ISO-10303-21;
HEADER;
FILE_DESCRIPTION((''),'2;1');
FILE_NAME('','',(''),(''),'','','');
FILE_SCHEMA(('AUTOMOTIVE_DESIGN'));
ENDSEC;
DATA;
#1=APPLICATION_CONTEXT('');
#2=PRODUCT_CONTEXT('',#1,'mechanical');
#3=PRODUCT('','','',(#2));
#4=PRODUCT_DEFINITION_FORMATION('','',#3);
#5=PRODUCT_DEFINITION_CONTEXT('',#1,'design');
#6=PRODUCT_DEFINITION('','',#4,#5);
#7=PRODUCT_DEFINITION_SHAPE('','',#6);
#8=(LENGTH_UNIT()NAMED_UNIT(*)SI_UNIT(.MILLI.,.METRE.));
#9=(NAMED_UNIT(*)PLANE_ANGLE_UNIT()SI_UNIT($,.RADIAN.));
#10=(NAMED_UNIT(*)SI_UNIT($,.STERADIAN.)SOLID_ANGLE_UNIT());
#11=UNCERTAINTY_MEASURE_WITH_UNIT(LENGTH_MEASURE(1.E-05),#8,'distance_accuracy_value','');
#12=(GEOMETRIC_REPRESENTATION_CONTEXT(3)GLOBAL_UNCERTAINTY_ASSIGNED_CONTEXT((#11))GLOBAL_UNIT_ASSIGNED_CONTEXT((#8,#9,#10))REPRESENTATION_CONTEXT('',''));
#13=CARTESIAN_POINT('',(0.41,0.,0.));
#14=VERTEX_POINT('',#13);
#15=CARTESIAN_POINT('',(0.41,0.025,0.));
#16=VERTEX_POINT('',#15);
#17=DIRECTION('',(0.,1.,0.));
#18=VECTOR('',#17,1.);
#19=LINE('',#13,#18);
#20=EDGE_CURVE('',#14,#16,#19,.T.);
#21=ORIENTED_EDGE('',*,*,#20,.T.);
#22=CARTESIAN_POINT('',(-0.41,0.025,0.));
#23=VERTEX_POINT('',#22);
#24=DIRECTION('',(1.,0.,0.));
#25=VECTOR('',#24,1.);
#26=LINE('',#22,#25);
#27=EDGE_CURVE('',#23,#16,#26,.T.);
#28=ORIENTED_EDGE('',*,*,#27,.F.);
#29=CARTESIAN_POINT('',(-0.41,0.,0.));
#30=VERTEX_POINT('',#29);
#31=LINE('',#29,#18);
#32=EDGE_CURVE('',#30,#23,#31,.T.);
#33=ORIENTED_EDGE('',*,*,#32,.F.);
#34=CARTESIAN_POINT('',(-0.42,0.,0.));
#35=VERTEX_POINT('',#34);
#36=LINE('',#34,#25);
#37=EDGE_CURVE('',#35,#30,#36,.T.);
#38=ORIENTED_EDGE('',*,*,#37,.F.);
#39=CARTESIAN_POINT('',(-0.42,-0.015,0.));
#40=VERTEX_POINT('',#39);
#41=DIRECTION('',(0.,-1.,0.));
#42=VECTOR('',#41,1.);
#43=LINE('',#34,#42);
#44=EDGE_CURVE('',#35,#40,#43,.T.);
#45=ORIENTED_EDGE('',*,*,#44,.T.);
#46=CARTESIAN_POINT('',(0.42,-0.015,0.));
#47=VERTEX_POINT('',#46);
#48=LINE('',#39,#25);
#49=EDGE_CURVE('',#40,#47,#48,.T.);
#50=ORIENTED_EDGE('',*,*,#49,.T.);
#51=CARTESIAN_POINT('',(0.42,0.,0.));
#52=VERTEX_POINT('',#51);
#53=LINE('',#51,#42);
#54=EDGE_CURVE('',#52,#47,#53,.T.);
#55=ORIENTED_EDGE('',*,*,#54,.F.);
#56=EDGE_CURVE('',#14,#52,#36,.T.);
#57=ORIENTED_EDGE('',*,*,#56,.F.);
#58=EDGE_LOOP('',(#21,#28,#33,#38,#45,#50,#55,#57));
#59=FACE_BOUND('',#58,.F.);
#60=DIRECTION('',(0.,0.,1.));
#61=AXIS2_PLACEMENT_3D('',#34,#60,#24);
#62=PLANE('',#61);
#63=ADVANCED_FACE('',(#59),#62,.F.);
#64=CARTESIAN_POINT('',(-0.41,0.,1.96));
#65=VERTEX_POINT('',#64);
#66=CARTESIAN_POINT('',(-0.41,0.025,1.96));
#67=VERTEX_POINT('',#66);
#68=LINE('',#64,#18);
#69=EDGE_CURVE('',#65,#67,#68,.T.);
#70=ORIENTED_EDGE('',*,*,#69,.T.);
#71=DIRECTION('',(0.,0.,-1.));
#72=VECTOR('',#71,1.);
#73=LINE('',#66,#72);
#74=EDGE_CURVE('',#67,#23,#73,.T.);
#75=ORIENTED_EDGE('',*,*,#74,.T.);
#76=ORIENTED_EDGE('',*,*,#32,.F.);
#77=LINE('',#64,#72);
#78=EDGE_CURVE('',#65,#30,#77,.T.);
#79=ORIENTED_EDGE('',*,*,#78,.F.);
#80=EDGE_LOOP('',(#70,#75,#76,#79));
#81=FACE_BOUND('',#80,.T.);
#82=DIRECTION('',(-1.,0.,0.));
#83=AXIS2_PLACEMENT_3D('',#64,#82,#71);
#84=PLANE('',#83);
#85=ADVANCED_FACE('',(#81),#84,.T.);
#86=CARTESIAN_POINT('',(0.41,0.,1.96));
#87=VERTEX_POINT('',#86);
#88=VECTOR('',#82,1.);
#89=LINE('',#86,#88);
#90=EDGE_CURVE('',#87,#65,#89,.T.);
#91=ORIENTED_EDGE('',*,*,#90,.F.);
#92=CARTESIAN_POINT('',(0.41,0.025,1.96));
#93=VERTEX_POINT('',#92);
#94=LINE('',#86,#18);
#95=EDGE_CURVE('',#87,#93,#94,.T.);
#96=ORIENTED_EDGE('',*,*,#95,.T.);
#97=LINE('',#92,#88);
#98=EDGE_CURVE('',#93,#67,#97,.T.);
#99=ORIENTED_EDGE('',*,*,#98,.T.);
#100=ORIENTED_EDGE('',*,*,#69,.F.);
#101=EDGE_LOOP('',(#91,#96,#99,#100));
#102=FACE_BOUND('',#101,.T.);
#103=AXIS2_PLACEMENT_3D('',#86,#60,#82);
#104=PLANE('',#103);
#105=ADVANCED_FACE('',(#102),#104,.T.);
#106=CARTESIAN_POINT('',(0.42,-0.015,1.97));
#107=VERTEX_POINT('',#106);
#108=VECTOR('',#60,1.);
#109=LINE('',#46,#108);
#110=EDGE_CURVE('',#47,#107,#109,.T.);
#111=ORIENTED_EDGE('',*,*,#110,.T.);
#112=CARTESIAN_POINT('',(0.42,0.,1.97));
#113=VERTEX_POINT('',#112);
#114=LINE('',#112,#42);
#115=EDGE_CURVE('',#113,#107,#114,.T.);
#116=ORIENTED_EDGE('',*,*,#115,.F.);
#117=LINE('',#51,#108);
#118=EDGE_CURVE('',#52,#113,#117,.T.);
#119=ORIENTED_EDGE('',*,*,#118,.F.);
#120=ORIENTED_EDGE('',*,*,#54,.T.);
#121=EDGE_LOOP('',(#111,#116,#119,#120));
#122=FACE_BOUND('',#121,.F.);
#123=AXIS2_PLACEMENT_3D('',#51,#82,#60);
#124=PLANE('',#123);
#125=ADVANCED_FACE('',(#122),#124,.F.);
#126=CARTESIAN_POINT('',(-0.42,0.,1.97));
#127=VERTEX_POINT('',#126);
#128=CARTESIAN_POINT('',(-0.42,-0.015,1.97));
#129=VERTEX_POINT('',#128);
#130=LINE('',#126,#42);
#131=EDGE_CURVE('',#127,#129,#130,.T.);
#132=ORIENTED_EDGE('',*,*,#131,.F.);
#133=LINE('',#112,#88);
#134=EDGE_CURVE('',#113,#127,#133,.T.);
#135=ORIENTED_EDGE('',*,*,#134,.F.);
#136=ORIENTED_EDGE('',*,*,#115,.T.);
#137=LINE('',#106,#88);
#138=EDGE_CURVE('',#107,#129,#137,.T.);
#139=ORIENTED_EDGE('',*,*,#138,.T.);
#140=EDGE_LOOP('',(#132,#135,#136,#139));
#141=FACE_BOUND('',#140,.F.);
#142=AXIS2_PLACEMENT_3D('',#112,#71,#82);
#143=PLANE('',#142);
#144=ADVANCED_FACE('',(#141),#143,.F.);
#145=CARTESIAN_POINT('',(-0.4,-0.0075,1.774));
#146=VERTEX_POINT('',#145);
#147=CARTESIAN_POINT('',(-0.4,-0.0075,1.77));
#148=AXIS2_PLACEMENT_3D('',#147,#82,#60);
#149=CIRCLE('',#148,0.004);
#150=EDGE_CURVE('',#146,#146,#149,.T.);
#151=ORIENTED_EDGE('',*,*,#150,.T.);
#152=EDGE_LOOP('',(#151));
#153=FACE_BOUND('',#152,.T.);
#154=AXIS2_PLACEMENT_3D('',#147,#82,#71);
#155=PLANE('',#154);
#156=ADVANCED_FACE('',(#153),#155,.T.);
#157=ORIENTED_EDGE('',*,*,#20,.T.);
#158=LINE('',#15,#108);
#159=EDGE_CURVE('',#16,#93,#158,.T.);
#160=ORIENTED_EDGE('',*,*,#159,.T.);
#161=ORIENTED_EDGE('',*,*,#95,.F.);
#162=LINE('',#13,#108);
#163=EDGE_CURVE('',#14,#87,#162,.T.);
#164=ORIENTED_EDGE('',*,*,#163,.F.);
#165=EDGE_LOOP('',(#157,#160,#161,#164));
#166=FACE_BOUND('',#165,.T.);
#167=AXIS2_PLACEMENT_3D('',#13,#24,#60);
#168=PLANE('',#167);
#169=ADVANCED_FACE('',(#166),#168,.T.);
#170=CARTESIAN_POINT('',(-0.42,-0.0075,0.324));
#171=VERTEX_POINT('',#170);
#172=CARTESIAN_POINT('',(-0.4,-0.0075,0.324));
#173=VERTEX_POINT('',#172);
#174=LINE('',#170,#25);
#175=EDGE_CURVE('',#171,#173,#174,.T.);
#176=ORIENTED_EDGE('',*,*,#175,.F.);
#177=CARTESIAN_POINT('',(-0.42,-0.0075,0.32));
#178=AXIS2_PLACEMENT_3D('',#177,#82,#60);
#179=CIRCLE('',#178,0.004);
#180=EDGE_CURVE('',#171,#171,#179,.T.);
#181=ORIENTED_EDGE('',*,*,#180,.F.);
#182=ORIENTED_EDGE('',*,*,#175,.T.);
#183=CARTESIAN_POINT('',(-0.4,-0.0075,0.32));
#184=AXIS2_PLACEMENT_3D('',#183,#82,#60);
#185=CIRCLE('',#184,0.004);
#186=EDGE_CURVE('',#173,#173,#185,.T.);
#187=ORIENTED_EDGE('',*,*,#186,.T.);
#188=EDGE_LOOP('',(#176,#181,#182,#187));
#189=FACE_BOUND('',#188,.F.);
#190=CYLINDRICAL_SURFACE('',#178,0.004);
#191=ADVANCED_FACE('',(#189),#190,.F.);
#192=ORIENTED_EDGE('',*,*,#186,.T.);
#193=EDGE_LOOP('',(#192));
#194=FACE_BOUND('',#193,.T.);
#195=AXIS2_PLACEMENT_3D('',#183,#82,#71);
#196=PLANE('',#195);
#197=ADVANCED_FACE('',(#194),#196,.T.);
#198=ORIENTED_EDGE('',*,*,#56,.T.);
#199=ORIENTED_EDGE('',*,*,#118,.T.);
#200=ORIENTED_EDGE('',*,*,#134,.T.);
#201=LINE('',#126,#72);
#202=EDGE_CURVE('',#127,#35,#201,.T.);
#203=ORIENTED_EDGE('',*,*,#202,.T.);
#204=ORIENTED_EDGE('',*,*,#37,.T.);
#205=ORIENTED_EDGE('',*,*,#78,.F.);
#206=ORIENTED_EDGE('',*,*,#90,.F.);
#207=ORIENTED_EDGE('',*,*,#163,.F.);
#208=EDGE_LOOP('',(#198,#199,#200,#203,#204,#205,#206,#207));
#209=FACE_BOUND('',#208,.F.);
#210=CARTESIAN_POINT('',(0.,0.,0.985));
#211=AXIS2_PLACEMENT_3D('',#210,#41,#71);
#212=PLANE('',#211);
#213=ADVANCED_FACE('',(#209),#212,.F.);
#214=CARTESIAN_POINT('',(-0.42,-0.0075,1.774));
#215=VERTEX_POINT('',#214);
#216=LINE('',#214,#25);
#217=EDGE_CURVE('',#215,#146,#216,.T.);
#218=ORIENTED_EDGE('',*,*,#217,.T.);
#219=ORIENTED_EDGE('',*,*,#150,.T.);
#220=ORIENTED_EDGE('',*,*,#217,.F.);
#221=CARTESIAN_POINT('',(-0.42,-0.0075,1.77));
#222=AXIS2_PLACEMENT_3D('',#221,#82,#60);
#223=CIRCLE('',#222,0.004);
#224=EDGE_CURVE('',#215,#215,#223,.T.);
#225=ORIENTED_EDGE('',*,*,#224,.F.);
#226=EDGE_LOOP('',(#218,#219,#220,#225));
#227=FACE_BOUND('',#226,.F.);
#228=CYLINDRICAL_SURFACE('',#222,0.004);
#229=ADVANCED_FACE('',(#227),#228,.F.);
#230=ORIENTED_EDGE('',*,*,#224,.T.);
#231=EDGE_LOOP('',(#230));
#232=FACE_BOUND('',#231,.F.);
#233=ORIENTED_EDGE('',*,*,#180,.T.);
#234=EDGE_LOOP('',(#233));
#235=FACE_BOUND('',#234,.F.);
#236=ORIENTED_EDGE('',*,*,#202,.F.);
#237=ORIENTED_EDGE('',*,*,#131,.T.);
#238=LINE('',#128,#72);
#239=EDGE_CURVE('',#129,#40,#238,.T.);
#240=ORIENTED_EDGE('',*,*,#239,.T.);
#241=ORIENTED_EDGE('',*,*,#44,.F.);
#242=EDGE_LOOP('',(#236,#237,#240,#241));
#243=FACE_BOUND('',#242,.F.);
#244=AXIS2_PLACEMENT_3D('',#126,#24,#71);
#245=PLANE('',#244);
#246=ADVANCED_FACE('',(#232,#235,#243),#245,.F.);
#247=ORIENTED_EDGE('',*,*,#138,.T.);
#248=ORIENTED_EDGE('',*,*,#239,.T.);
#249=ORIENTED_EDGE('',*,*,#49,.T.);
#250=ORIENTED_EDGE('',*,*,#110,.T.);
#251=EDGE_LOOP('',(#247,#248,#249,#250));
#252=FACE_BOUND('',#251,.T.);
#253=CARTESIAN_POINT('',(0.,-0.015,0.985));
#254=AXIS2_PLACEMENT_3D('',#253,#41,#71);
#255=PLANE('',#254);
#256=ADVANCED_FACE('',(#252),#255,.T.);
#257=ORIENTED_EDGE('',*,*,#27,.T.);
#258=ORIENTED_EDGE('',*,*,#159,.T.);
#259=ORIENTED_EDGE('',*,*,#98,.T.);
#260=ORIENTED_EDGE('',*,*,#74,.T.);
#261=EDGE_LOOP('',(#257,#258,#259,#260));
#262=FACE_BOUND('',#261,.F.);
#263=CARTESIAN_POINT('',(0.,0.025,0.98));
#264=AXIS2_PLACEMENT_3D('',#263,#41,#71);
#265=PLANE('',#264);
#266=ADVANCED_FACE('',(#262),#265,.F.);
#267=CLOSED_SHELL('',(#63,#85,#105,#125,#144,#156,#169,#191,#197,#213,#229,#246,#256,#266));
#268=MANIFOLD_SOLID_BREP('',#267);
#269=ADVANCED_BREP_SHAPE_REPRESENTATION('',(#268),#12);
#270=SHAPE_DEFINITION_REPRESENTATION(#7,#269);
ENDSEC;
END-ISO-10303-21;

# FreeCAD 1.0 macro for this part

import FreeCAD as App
import Part
import Sketcher
Q = App.Units.Quantity


def add_polygon(sketch, points):
    """Adds a closed chain of lines whose ends are joined by coincident constraints."""
    first, n = sketch.GeometryCount, len(points)
    for a, b in zip(points, points[1:] + points[:1]):
        sketch.addGeometry(Part.LineSegment(App.Vector(*a, 0), App.Vector(*b, 0)), False)
    for i in range(n):
        sketch.addConstraint(Sketcher.Constraint("Coincident", first + i, 2, first + (i + 1) % n, 1))

doc = App.newDocument("Part")
params = doc.addObject("Spreadsheet::Sheet", "Params")
for row, (alias, value) in enumerate([
    ("sketch1_height", "1.96 mm"),
    ("pad1_length", "0.025 mm"),
    ("sketch2_width", "0.84 mm"),
    ("sketch2_height", "1.97 mm"),
    ("pad2_length", "0.015 mm"),
    ("pocket1_length", "0.02 mm"),
], start=1):
    params.set(f"A{row}", alias)
    params.set(f"B{row}", "=" + value)
    params.setAlias(f"B{row}", alias)

body = doc.addObject("PartDesign::Body", "Body")

sketch1 = body.newObject("Sketcher::SketchObject", "Sketch")
sketch1.AttachmentSupport = (doc.getObject("XZ_Plane"), [""])
sketch1.MapMode = "FlatFace"
add_polygon(sketch1, [(-0.41, 1.96), (-0.41, 0), (0.41, 0), (0.41, 1.96)])
sketch1.addConstraint(Sketcher.Constraint("Vertical", 0))
sketch1.addConstraint(Sketcher.Constraint("Horizontal", 1))
sketch1.addConstraint(Sketcher.Constraint("Vertical", 2))
sketch1.addConstraint(Sketcher.Constraint("Horizontal", 3))
sketch1.addConstraint(Sketcher.Constraint("Symmetric", 0, 2, 1, 2, -1, 1))
sketch1.addConstraint(Sketcher.Constraint("DistanceX", 0, 2, -1, 1, Q("0.41 mm")))
sketch1.addConstraint(Sketcher.Constraint("DistanceY", 0, 2, 0, 1, Q("1.96 mm")))
sketch1.setExpression("Constraints[10]", "Params.sketch1_height")
pad1 = body.newObject("PartDesign::Pad", "Pad")
pad1.Profile = sketch1
pad1.setExpression("Length", "Params.pad1_length")
pad1.Reversed = True

sketch2 = body.newObject("Sketcher::SketchObject", "Sketch001")
sketch2.AttachmentSupport = (doc.getObject("XZ_Plane"), [""])
sketch2.MapMode = "FlatFace"
add_polygon(sketch2, [(-0.42, 1.97), (-0.42, 0), (0.42, 0), (0.42, 1.97)])
sketch2.addConstraint(Sketcher.Constraint("Vertical", 0))
sketch2.addConstraint(Sketcher.Constraint("Horizontal", 1))
sketch2.addConstraint(Sketcher.Constraint("Vertical", 2))
sketch2.addConstraint(Sketcher.Constraint("Horizontal", 3))
sketch2.addConstraint(Sketcher.Constraint("Symmetric", 0, 2, 1, 2, -1, 1))
sketch2.addConstraint(Sketcher.Constraint("DistanceX", 1, 1, 1, 2, Q("0.84 mm")))
sketch2.addConstraint(Sketcher.Constraint("DistanceY", 0, 2, 0, 1, Q("1.97 mm")))
sketch2.setExpression("Constraints[9]", "Params.sketch2_width")
sketch2.setExpression("Constraints[10]", "Params.sketch2_height")
pad2 = body.newObject("PartDesign::Pad", "Pad001")
pad2.Profile = sketch2
pad2.setExpression("Length", "Params.pad2_length")

sketch3 = body.newObject("Sketcher::SketchObject", "Sketch002")
sketch3.AttachmentSupport = (doc.getObject("YZ_Plane"), [""])
sketch3.MapMode = "FlatFace"
sketch3.AttachmentOffset = App.Placement(App.Vector(0, 0, -0.42), App.Rotation())
sketch3.addGeometry(Part.Circle(App.Vector(-0.0075, 1.77, 0), App.Vector(0, 0, 1), 0.004), False)
sketch3.addGeometry(Part.Circle(App.Vector(-0.0075, 0.32, 0), App.Vector(0, 0, 1), 0.004), False)
sketch3.addConstraint(Sketcher.Constraint("Equal", 0, 1))
sketch3.addConstraint(Sketcher.Constraint("Vertical", 0, 3, 1, 3))
sketch3.addConstraint(Sketcher.Constraint("Diameter", 0, Q("0.008 mm")))
sketch3.addConstraint(Sketcher.Constraint("DistanceY", -1, 1, 0, 3, Q("1.77 mm")))
sketch3.addConstraint(Sketcher.Constraint("DistanceY", -1, 1, 1, 3, Q("0.32 mm")))
sketch3.addConstraint(Sketcher.Constraint("DistanceX", 0, 3, -1, 1, Q("0.0075 mm")))
pocket1 = body.newObject("PartDesign::Pocket", "Pocket")
pocket1.Profile = sketch3
pocket1.setExpression("Length", "Params.pocket1_length")
pocket1.Reversed = True

doc.recompute()
